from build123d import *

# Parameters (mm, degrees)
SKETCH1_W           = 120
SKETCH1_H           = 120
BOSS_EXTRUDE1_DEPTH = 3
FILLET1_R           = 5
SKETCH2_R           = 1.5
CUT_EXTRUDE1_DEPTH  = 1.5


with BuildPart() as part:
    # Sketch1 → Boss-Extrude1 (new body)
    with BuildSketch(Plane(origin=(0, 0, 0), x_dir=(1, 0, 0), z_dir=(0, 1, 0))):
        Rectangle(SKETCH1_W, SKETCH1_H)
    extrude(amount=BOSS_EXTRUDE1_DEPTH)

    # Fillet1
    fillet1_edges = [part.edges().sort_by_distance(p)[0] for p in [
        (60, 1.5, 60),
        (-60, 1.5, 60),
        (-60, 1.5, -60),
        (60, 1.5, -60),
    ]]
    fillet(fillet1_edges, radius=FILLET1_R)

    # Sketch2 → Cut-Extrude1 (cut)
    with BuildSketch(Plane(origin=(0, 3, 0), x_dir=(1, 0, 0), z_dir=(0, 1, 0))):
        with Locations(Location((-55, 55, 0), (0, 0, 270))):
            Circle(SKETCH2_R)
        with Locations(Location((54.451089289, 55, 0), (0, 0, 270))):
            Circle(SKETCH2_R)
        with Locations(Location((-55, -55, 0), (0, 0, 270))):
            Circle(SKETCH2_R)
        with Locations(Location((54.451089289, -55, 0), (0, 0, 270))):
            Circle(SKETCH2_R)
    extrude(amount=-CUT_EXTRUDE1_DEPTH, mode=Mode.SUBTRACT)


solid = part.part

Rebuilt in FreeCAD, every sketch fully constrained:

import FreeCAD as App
import Part
import Sketcher

V = App.Vector
Q = App.Units.Quantity


def edges_at(feature, points):
    """Names of the edges that pass closest to the given points."""
    edges = feature.Shape.Edges
    near = lambda p: min(range(len(edges)), key=lambda i: edges[i].distToShape(Part.Vertex(*p))[0])
    return sorted({f"Edge{near(p) + 1}" for p in points})


def add_polygon(sketch, points):
    """Adds a closed chain of lines whose ends are joined by coincident constraints."""
    first, n = sketch.GeometryCount, len(points)
    for a, b in zip(points, points[1:] + points[:1]):
        sketch.addGeometry(Part.LineSegment(App.Vector(*a, 0), App.Vector(*b, 0)), False)
    for i in range(n):
        sketch.addConstraint(Sketcher.Constraint("Coincident", first + i, 2, first + (i + 1) % n, 1))

doc = App.newDocument("Part")
body = doc.addObject("PartDesign::Body", "Body")

# Sketch on XZ plane
sketch1 = body.newObject("Sketcher::SketchObject", "Sketch")
sketch1.AttachmentSupport = (doc.getObject("XZ_Plane"), [""])
sketch1.MapMode = "FlatFace"
add_polygon(sketch1, [(-60, -60), (-60, 60), (60, 60), (60, -60)])  # lines 0-3
sketch1.addConstraint(Sketcher.Constraint("Vertical", 0))
sketch1.addConstraint(Sketcher.Constraint("Horizontal", 1))
sketch1.addConstraint(Sketcher.Constraint("Vertical", 2))
sketch1.addConstraint(Sketcher.Constraint("Horizontal", 3))
sketch1.addConstraint(Sketcher.Constraint("Symmetric", 0, 2, 2, 2, -1, 1))
sketch1.addConstraint(Sketcher.Constraint("Equal", 3, 0))
sketch1.addConstraint(Sketcher.Constraint("DistanceX", 1, 1, 1, 2, Q("120 mm")))
pad1 = body.newObject("PartDesign::Pad", "Pad")
pad1.Profile = sketch1
pad1.Length = 3
pad1.Reversed = True
doc.recompute()

fillet = body.newObject("PartDesign::Fillet", "Fillet")
fillet.Base = (pad1, edges_at(pad1, [
    (60, 1.5, 60),
    (-60, 1.5, 60),
    (-60, 1.5, -60),
    (60, 1.5, -60),
]))
fillet.Radius = 5

# Sketch on XZ plane
sketch2 = body.newObject("Sketcher::SketchObject", "Sketch001")
sketch2.AttachmentSupport = (doc.getObject("XZ_Plane"), [""])
sketch2.MapMode = "FlatFace"
sketch2.AttachmentOffset = App.Placement(V(0, 0, -3), App.Rotation())
sketch2.addGeometry(Part.Circle(V(-55, -55, 0), V(0, 0, 1), 1.5), False)
sketch2.addGeometry(Part.Circle(V(54.5, -55, 0), V(0, 0, 1), 1.5), False)
sketch2.addGeometry(Part.Circle(V(-55, 55, 0), V(0, 0, 1), 1.5), False)
sketch2.addGeometry(Part.Circle(V(54.5, 55, 0), V(0, 0, 1), 1.5), False)
sketch2.addConstraint(Sketcher.Constraint("Equal", 0, 1))
sketch2.addConstraint(Sketcher.Constraint("Equal", 1, 2))
sketch2.addConstraint(Sketcher.Constraint("Equal", 2, 3))
sketch2.addConstraint(Sketcher.Constraint("Symmetric", 0, 3, 2, 3, -1))
sketch2.addConstraint(Sketcher.Constraint("Symmetric", 1, 3, 3, 3, -1))
sketch2.addConstraint(Sketcher.Constraint("Horizontal", 0, 3, 1, 3))
sketch2.addConstraint(Sketcher.Constraint("Diameter", 0, Q("3 mm")))
sketch2.addConstraint(Sketcher.Constraint("DistanceX", 0, 3, -1, 1, Q("55 mm")))
sketch2.addConstraint(Sketcher.Constraint("DistanceY", 0, 3, -1, 1, Q("55 mm")))
sketch2.addConstraint(Sketcher.Constraint("DistanceX", -1, 1, 1, 3, Q("54.451089 mm")))
pocket1 = body.newObject("PartDesign::Pocket", "Pocket")
pocket1.Profile = sketch2
pocket1.Length = 1.5
pocket1.Reversed = True

doc.recompute()
